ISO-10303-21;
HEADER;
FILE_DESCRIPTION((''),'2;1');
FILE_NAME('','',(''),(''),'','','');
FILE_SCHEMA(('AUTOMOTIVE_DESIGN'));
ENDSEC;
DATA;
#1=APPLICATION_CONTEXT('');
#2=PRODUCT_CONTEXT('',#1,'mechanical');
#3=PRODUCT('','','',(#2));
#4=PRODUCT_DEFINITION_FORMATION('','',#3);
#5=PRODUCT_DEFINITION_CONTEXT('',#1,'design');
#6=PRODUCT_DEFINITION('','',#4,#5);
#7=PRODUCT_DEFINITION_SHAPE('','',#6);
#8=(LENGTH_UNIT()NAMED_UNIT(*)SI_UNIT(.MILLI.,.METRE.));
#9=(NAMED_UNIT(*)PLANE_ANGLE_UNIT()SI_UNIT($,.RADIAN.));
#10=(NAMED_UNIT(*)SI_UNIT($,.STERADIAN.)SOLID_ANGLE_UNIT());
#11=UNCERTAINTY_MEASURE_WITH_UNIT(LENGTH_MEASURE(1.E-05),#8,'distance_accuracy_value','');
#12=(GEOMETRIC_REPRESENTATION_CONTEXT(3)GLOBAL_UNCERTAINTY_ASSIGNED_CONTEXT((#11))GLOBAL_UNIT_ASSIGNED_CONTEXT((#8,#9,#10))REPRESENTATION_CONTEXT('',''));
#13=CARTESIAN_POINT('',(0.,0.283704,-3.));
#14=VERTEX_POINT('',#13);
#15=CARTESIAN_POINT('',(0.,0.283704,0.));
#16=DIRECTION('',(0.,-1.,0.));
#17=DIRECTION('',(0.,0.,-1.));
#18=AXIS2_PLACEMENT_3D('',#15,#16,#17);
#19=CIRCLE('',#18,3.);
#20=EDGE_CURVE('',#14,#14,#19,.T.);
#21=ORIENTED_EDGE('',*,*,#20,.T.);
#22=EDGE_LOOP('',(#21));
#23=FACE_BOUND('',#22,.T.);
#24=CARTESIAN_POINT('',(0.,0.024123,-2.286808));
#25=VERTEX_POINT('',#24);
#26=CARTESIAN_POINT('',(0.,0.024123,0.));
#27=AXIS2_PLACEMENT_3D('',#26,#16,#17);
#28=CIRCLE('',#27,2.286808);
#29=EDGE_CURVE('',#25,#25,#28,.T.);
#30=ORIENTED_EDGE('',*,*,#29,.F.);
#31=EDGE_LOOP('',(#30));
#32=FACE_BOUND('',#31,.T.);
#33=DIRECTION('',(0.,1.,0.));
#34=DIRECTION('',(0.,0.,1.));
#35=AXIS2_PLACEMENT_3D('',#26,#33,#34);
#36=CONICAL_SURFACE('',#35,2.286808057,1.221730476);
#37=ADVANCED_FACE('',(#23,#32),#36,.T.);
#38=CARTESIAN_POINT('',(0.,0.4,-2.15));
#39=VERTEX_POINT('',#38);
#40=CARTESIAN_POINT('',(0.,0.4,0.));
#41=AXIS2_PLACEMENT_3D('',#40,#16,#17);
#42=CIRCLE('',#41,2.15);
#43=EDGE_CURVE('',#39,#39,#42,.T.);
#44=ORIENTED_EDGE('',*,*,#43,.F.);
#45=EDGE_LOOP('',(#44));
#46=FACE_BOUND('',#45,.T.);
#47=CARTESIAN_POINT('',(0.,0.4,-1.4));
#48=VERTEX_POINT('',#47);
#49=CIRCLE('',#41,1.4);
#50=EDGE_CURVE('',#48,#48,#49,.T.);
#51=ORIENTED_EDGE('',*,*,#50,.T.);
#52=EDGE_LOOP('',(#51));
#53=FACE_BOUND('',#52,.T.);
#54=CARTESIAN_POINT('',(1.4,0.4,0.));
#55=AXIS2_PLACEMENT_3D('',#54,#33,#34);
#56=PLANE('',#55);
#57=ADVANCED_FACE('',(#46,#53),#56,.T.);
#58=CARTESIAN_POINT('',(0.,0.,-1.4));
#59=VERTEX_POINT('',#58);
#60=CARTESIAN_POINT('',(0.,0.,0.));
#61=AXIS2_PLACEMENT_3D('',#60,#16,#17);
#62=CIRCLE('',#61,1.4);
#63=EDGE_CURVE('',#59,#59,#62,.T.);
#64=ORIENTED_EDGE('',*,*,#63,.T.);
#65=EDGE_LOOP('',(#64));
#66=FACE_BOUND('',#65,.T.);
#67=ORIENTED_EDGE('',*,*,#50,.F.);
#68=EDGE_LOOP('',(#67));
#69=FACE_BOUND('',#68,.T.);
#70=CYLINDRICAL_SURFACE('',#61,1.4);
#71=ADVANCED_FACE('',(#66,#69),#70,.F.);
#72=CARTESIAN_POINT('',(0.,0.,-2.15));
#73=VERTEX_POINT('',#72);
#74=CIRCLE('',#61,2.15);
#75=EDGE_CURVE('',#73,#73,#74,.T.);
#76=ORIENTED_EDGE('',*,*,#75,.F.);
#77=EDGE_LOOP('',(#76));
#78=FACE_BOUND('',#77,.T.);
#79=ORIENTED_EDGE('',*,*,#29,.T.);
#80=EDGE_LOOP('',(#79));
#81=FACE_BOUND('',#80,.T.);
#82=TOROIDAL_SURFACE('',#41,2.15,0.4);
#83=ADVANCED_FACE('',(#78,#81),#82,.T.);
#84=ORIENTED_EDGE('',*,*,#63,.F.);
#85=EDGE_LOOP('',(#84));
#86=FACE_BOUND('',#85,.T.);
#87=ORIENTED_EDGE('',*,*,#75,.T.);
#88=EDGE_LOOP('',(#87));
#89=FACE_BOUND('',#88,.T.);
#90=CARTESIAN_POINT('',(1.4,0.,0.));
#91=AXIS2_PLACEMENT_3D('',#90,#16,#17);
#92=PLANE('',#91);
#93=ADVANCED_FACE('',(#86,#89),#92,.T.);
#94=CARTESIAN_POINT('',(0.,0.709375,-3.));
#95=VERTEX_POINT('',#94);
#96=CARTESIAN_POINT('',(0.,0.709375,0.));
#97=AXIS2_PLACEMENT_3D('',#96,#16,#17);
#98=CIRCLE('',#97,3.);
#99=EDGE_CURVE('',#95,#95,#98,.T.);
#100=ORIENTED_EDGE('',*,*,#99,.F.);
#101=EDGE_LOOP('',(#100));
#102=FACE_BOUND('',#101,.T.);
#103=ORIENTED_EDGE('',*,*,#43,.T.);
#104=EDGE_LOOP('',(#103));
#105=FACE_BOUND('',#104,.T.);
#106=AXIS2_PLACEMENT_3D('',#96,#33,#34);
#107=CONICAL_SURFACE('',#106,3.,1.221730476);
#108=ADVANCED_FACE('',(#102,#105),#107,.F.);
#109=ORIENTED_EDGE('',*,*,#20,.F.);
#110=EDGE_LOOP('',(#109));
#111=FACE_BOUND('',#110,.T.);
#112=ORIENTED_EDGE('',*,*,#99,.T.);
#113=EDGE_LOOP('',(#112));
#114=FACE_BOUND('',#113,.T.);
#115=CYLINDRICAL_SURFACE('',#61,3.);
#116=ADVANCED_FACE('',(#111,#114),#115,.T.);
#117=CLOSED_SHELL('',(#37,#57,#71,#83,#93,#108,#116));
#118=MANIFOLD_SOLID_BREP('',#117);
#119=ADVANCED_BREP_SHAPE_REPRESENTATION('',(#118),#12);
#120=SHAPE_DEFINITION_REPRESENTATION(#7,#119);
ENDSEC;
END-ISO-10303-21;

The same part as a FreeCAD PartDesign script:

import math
import FreeCAD as App
import Part
import Sketcher
from FreeCAD import Vector
Q = App.Units.Quantity

doc = App.newDocument("Part")
params = doc.addObject("Spreadsheet::Sheet", "Params")
for row, (alias, value) in enumerate([
    ("sketch1_radius", "0.4 mm"),
    ("sketch1_width", "0.75 mm"),
    ("revolution_angle", "360 deg"),
], start=1):
    params.set(f"A{row}", alias)
    params.set(f"B{row}", "=" + value)
    params.setAlias(f"B{row}", alias)

body = doc.addObject("PartDesign::Body", "Body")

# Sketch on XY plane
sketch1 = body.newObject("Sketcher::SketchObject", "Sketch")
sketch1.AttachmentSupport = (doc.getObject("XY_Plane"), [""])
sketch1.MapMode = "FlatFace"
sketch1.addGeometry(Part.LineSegment(Vector(3, 0.709375, 0), Vector(2.15, 0.4, 0)), False)
sketch1.addGeometry(Part.LineSegment(Vector(2.15, 0.4, 0), Vector(1.4, 0.4, 0)), False)
sketch1.addGeometry(Part.LineSegment(Vector(1.4, 0.4, 0), Vector(1.4, 0, 0)), False)
sketch1.addGeometry(Part.LineSegment(Vector(1.4, 0, 0), Vector(2.15, 0, 0)), False)
sketch1.addGeometry(Part.ArcOfCircle(Part.Circle(Vector(2.15, 0.4, 0), Vector(0, 0, 1), 0.4), math.radians(-90), math.radians(-70)), False)
sketch1.addGeometry(Part.LineSegment(Vector(2.286808, 0.024123, 0), Vector(3, 0.283704, 0)), False)
sketch1.addGeometry(Part.LineSegment(Vector(3, 0.283704, 0), Vector(3, 0.709375, 0)), False)
sketch1.addConstraint(Sketcher.Constraint("Coincident", 0, 2, 1, 1))
sketch1.addConstraint(Sketcher.Constraint("Coincident", 1, 2, 2, 1))
sketch1.addConstraint(Sketcher.Constraint("Coincident", 2, 2, 3, 1))
sketch1.addConstraint(Sketcher.Constraint("Tangent", 3, 2, 4, 1))
sketch1.addConstraint(Sketcher.Constraint("Tangent", 4, 2, 5, 1))
sketch1.addConstraint(Sketcher.Constraint("Coincident", 5, 2, 6, 1))
sketch1.addConstraint(Sketcher.Constraint("Coincident", 6, 2, 0, 1))
sketch1.addConstraint(Sketcher.Constraint("Horizontal", 1))
sketch1.addConstraint(Sketcher.Constraint("Vertical", 2))
sketch1.addConstraint(Sketcher.Constraint("Horizontal", 3))
sketch1.addConstraint(Sketcher.Constraint("Vertical", 6))
sketch1.addConstraint(Sketcher.Constraint("Coincident", 0, 2, 4, 3))
sketch1.addConstraint(Sketcher.Constraint("PointOnObject", 2, 2, -1))
sketch1.addConstraint(Sketcher.Constraint("Parallel", 0, 5))
sketch1.addConstraint(Sketcher.Constraint("Radius", 4, 0.4))
sketch1.addConstraint(Sketcher.Constraint("Angle", 0, Q("-160 deg")))
sketch1.addConstraint(Sketcher.Constraint("DistanceX", -1, 1, 5, 2, 3.0))
sketch1.addConstraint(Sketcher.Constraint("DistanceX", 1, 2, 1, 1, 0.75))
sketch1.addConstraint(Sketcher.Constraint("DistanceX", -1, 1, 1, 2, 1.4))
sketch1.setExpression("Constraints[14]", "Params.sketch1_radius")
sketch1.setExpression("Constraints[17]", "Params.sketch1_width")
revolution = body.newObject("PartDesign::Revolution", "Revolution")
revolution.Profile = sketch1
revolution.ReferenceAxis = (sketch1, ["V_Axis"])
revolution.setExpression("Angle", "Params.revolution_angle")

doc.recompute()
